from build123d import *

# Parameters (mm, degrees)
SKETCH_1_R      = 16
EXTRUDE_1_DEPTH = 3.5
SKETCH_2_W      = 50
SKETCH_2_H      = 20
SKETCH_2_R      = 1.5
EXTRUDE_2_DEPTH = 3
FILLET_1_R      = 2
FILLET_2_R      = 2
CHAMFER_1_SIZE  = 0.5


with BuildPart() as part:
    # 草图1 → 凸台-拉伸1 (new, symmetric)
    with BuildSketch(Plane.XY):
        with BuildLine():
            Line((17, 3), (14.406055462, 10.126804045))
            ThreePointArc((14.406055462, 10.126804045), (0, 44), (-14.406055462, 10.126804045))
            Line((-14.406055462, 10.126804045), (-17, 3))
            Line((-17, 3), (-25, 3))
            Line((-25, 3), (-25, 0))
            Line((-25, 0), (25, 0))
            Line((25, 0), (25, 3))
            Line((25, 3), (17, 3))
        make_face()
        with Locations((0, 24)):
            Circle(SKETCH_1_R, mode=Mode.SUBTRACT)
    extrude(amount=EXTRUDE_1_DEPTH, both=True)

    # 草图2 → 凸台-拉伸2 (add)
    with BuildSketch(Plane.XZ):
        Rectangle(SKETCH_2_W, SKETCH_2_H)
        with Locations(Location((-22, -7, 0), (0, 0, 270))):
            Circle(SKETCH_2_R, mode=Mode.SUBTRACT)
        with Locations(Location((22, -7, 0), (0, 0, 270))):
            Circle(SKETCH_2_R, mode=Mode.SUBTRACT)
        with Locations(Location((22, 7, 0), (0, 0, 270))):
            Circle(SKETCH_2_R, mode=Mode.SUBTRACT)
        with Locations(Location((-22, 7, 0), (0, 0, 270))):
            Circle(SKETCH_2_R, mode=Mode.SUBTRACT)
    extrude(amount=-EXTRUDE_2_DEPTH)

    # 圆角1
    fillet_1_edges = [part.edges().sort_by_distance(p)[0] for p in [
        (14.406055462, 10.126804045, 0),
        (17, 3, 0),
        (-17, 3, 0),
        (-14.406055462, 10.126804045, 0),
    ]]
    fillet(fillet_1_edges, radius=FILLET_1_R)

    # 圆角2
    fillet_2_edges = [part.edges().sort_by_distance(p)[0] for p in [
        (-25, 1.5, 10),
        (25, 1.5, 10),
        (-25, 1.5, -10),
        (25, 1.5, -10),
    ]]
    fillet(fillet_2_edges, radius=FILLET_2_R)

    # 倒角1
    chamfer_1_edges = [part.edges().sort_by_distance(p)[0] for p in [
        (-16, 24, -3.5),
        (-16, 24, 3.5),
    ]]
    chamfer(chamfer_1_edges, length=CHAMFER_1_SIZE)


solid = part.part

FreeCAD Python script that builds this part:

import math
import FreeCAD as App
import Part
import Sketcher
from FreeCAD import Vector
Q = App.Units.Quantity


def edges_at(feature, points):
    """Names of the edges that pass closest to the given points."""
    edges = feature.Shape.Edges
    near = lambda p: min(range(len(edges)), key=lambda i: edges[i].distToShape(Part.Vertex(*p))[0])
    return sorted({f"Edge{near(p) + 1}" for p in points})

doc = App.newDocument("Part")
body = doc.addObject("PartDesign::Body", "Body")

# Sketch on XY plane
sketch1 = doc.addObject("Sketcher::SketchObject", "Sketch")
body.addObject(sketch1)
sketch1.AttachmentSupport = (doc.XY_Plane, [""])
sketch1.MapMode = "FlatFace"
sketch1.addGeometry(Part.LineSegment(Vector(17, 3, 0), Vector(14.4, 10.1, 0)), False)
sketch1.addGeometry(Part.ArcOfCircle(Part.Circle(Vector(0, 24, 0), Vector(0, 0, 1), 20), math.radians(-44), math.radians(224)), False)
sketch1.addGeometry(Part.LineSegment(Vector(-14.4, 10.1, 0), Vector(-17, 3, 0)), False)
sketch1.addGeometry(Part.LineSegment(Vector(-17, 3, 0), Vector(-25, 3, 0)), False)
sketch1.addGeometry(Part.LineSegment(Vector(-25, 3, 0), Vector(-25, 0, 0)), False)
sketch1.addGeometry(Part.LineSegment(Vector(-25, 0, 0), Vector(25, 0, 0)), False)
sketch1.addGeometry(Part.LineSegment(Vector(25, 0, 0), Vector(25, 3, 0)), False)
sketch1.addGeometry(Part.LineSegment(Vector(25, 3, 0), Vector(17, 3, 0)), False)
sketch1.addGeometry(Part.Circle(Vector(0, 24, 0), Vector(0, 0, 1), 16), False)
sketch1.addConstraint(Sketcher.Constraint("Coincident", 0, 2, 1, 1))
sketch1.addConstraint(Sketcher.Constraint("Coincident", 1, 2, 2, 1))
sketch1.addConstraint(Sketcher.Constraint("Coincident", 2, 2, 3, 1))
sketch1.addConstraint(Sketcher.Constraint("Coincident", 3, 2, 4, 1))
sketch1.addConstraint(Sketcher.Constraint("Coincident", 4, 2, 5, 1))
sketch1.addConstraint(Sketcher.Constraint("Coincident", 5, 2, 6, 1))
sketch1.addConstraint(Sketcher.Constraint("Coincident", 6, 2, 7, 1))
sketch1.addConstraint(Sketcher.Constraint("Coincident", 7, 2, 0, 1))
sketch1.addConstraint(Sketcher.Constraint("Horizontal", 3))
sketch1.addConstraint(Sketcher.Constraint("Vertical", 4))
sketch1.addConstraint(Sketcher.Constraint("Horizontal", 5))
sketch1.addConstraint(Sketcher.Constraint("Vertical", 6))
sketch1.addConstraint(Sketcher.Constraint("Horizontal", 7))
sketch1.addConstraint(Sketcher.Constraint("Coincident", 8, 3, 1, 3))
sketch1.addConstraint(Sketcher.Constraint("Symmetric", 4, 2, 5, 2, -1, 1))
sketch1.addConstraint(Sketcher.Constraint("Symmetric", 0, 2, 1, 2, -2))
sketch1.addConstraint(Sketcher.Constraint("Symmetric", 2, 2, 7, 2, -2))
sketch1.addConstraint(Sketcher.Constraint("Diameter", 8, Q("32 mm")))
sketch1.addConstraint(Sketcher.Constraint("Radius", 1, Q("20 mm")))
sketch1.addConstraint(Sketcher.Constraint("DistanceX", 3, 2, 3, 1, Q("8 mm")))
sketch1.addConstraint(Sketcher.Constraint("DistanceX", 5, 1, 5, 2, Q("50 mm")))
sketch1.addConstraint(Sketcher.Constraint("DistanceY", 4, 2, 4, 1, Q("3 mm")))
sketch1.addConstraint(Sketcher.Constraint("Angle", 0, Q("110 deg")))
sketch1.addConstraint(Sketcher.Constraint("DistanceY", -1, 1, 1, 3, Q("24 mm")))
pad1 = doc.addObject("PartDesign::Pad", "Pad")
body.addObject(pad1)
pad1.Profile = sketch1
pad1.Length = 7
pad1.Midplane = True

# Sketch on XZ plane
sketch2 = doc.addObject("Sketcher::SketchObject", "Sketch001")
body.addObject(sketch2)
sketch2.AttachmentSupport = (doc.XZ_Plane, [""])
sketch2.MapMode = "FlatFace"
sketch2.addGeometry(Part.LineSegment(Vector(-25, 10, 0), Vector(-25, -10, 0)), False)
sketch2.addGeometry(Part.LineSegment(Vector(-25, -10, 0), Vector(25, -10, 0)), False)
sketch2.addGeometry(Part.LineSegment(Vector(25, -10, 0), Vector(25, 10, 0)), False)
sketch2.addGeometry(Part.LineSegment(Vector(25, 10, 0), Vector(-25, 10, 0)), False)
sketch2.addGeometry(Part.Circle(Vector(-22, -7, 0), Vector(0, 0, 1), 1.5), False)
sketch2.addGeometry(Part.Circle(Vector(22, -7, 0), Vector(0, 0, 1), 1.5), False)
sketch2.addGeometry(Part.Circle(Vector(-22, 7, 0), Vector(0, 0, 1), 1.5), False)
sketch2.addGeometry(Part.Circle(Vector(22, 7, 0), Vector(0, 0, 1), 1.5), False)
sketch2.addConstraint(Sketcher.Constraint("Coincident", 0, 2, 1, 1))
sketch2.addConstraint(Sketcher.Constraint("Coincident", 1, 2, 2, 1))
sketch2.addConstraint(Sketcher.Constraint("Coincident", 2, 2, 3, 1))
sketch2.addConstraint(Sketcher.Constraint("Coincident", 3, 2, 0, 1))
sketch2.addConstraint(Sketcher.Constraint("Vertical", 0))
sketch2.addConstraint(Sketcher.Constraint("Horizontal", 1))
sketch2.addConstraint(Sketcher.Constraint("Vertical", 2))
sketch2.addConstraint(Sketcher.Constraint("Horizontal", 3))
sketch2.addConstraint(Sketcher.Constraint("Equal", 4, 5))
sketch2.addConstraint(Sketcher.Constraint("Equal", 5, 6))
sketch2.addConstraint(Sketcher.Constraint("Equal", 6, 7))
sketch2.addConstraint(Sketcher.Constraint("Symmetric", 5, 3, 6, 3, -1, 1))
sketch2.addConstraint(Sketcher.Constraint("Symmetric", 4, 3, 7, 3, -1, 1))
sketch2.addConstraint(Sketcher.Constraint("Symmetric", 0, 2, 2, 2, -1, 1))
sketch2.addConstraint(Sketcher.Constraint("Symmetric", 4, 3, 5, 3, -2))
sketch2.addConstraint(Sketcher.Constraint("Diameter", 4, Q("3 mm")))
sketch2.addConstraint(Sketcher.Constraint("DistanceX", 1, 1, 1, 2, Q("50 mm")))
sketch2.addConstraint(Sketcher.Constraint("DistanceY", 0, 2, 0, 1, Q("20 mm")))
sketch2.addConstraint(Sketcher.Constraint("DistanceX", 4, 3, -1, 1, Q("22 mm")))
sketch2.addConstraint(Sketcher.Constraint("DistanceY", 4, 3, -1, 1, Q("7 mm")))
pad2 = doc.addObject("PartDesign::Pad", "Pad001")
body.addObject(pad2)
pad2.Profile = sketch2
pad2.Length = 3
pad2.Reversed = True
doc.recompute()

fillet = doc.addObject("PartDesign::Fillet", "Fillet")
body.addObject(fillet)
fillet.Base = (pad2, edges_at(pad2, [
    (14.406, 10.127, 0),
    (17, 3, 0),
    (-17, 3, 0),
    (-14.406, 10.127, 0),
]))
fillet.Radius = 2
doc.recompute()

fillet2 = doc.addObject("PartDesign::Fillet", "Fillet001")
body.addObject(fillet2)
fillet2.Base = (fillet, edges_at(fillet, [
    (-25, 1.5, 10),
    (25, 1.5, 10),
    (-25, 1.5, -10),
    (25, 1.5, -10),
]))
fillet2.Radius = 2
doc.recompute()

chamfer = doc.addObject("PartDesign::Chamfer", "Chamfer")
body.addObject(chamfer)
chamfer.Base = (fillet2, edges_at(fillet2, [(-16, 24, -3.5), (-16, 24, 3.5)]))
chamfer.Size = 0.5

doc.recompute()
